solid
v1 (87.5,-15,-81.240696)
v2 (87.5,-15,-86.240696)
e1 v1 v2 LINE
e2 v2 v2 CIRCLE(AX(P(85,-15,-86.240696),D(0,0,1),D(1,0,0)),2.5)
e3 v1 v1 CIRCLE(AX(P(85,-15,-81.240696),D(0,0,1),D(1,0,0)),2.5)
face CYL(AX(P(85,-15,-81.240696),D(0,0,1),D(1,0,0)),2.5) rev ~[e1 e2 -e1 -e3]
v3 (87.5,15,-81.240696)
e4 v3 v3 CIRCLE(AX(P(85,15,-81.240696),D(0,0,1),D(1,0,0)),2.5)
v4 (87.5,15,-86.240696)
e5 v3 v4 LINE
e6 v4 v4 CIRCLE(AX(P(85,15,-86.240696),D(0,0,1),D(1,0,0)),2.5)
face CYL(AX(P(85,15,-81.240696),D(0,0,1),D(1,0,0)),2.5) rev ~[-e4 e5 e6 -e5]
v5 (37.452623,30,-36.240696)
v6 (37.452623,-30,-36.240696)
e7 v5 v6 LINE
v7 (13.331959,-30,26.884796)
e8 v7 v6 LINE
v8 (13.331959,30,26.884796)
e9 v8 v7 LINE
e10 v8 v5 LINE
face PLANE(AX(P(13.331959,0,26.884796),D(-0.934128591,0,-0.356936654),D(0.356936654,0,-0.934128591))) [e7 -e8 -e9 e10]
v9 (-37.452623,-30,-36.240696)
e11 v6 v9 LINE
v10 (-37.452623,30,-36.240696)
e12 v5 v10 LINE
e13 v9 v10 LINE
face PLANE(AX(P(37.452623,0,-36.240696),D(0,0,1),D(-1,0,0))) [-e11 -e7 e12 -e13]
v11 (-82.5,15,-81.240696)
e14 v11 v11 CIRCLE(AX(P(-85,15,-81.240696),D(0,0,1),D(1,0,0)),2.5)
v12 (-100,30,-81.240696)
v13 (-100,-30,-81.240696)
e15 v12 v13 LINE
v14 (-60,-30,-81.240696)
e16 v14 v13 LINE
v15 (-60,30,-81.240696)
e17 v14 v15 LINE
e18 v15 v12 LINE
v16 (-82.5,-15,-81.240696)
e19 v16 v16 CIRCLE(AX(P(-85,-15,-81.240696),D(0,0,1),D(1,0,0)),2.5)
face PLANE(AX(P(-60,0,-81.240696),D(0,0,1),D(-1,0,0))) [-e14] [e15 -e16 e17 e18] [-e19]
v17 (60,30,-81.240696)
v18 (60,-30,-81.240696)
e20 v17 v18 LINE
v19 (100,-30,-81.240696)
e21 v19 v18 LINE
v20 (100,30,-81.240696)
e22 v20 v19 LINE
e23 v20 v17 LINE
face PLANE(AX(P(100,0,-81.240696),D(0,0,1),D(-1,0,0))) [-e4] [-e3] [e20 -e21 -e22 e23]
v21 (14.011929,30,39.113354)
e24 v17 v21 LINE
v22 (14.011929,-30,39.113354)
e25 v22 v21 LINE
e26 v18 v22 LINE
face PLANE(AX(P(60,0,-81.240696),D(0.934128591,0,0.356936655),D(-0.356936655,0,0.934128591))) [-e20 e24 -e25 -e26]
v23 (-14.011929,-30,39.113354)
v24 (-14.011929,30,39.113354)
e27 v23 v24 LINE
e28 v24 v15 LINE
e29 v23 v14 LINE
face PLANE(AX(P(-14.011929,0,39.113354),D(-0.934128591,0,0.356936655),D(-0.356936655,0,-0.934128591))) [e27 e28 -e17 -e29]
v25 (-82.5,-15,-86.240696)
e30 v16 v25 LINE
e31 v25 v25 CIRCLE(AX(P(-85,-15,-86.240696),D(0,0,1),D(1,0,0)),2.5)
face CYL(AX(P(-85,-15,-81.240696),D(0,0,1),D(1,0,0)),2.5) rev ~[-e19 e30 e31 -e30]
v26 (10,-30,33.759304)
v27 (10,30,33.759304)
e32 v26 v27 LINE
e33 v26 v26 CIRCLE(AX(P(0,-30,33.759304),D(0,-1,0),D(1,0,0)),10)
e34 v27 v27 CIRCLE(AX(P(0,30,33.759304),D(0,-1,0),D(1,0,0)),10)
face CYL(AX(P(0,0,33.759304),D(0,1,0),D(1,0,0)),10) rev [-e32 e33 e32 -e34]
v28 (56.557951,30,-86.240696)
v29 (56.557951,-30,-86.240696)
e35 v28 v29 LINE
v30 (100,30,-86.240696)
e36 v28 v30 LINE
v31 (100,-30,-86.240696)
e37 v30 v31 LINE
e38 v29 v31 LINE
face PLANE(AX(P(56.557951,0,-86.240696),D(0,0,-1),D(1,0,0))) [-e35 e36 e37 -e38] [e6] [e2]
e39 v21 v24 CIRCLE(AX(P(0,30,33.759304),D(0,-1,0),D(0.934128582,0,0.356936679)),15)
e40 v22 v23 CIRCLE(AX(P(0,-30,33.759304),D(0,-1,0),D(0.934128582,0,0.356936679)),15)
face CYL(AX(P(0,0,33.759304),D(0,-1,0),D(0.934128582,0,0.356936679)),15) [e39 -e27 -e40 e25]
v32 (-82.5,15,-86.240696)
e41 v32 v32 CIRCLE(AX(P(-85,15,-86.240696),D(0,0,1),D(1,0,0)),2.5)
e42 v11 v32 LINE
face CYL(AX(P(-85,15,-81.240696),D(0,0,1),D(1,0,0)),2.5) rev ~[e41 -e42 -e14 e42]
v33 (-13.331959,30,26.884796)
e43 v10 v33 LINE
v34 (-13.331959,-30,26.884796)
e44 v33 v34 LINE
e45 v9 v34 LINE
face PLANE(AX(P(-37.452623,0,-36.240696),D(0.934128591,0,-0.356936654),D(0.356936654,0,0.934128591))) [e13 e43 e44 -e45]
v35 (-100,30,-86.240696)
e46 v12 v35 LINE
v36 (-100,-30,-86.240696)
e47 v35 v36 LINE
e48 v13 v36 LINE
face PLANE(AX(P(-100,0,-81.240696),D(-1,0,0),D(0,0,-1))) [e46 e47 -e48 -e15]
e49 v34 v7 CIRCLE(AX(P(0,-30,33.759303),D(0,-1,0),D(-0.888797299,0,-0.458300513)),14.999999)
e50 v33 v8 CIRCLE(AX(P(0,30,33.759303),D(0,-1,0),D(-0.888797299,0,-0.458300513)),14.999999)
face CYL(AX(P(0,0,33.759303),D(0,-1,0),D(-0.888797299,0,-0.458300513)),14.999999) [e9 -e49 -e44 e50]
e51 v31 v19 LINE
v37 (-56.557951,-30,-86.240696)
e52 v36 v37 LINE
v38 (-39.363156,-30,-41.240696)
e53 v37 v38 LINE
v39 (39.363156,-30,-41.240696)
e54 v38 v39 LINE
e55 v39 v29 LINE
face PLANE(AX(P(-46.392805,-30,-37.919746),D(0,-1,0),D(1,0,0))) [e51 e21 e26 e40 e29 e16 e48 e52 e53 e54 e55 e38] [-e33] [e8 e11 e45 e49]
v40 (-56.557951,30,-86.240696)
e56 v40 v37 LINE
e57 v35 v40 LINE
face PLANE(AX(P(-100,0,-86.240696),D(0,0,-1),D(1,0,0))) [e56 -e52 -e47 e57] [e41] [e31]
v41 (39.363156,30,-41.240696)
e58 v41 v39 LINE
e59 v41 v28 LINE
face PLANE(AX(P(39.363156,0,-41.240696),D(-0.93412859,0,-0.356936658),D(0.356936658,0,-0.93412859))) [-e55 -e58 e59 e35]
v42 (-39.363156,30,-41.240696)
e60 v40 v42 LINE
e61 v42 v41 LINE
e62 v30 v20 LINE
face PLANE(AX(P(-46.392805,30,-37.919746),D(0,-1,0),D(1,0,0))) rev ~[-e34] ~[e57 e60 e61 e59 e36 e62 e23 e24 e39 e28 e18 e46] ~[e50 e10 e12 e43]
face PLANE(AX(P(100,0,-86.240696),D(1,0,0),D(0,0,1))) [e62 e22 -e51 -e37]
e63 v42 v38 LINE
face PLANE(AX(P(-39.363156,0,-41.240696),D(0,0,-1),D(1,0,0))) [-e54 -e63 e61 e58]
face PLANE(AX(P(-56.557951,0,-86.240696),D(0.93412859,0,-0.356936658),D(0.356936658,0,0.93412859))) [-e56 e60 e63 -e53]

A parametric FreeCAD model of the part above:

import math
import FreeCAD as App
import Part
import Sketcher
Q = App.Units.Quantity

doc = App.newDocument("Part")
body = doc.addObject("PartDesign::Body", "Body")

# Sketch on XZ plane
sketch1 = body.newObject("Sketcher::SketchObject", "Sketch")
sketch1.AttachmentSupport = (doc.getObject("XZ_Plane"), [""])
sketch1.MapMode = "FlatFace"
sketch1.addGeometry([
    Part.LineSegment(App.Vector(-60, -81, 0), App.Vector(-100, -81, 0)),  # 0
    Part.LineSegment(App.Vector(-100, -81, 0), App.Vector(-100, -86, 0)),  # 1
    Part.LineSegment(App.Vector(-100, -86, 0), App.Vector(-57, -86, 0)),  # 2
    Part.LineSegment(App.Vector(-57, -86, 0), App.Vector(-39, -41, 0)),  # 3
    Part.LineSegment(App.Vector(-39, -41, 0), App.Vector(39, -41, 0)),  # 4
    Part.LineSegment(App.Vector(39, -41, 0), App.Vector(57, -86, 0)),  # 5
    Part.LineSegment(App.Vector(57, -86, 0), App.Vector(100, -86, 0)),  # 6
    Part.LineSegment(App.Vector(100, -86, 0), App.Vector(100, -81, 0)),  # 7
    Part.LineSegment(App.Vector(100, -81, 0), App.Vector(60, -81, 0)),  # 8
    Part.LineSegment(App.Vector(60, -81, 0), App.Vector(14, 39, 0)),  # 9
    Part.ArcOfCircle(Part.Circle(App.Vector(0, 34, 0), App.Vector(0, 0, 1), 15), math.radians(21), math.radians(159)),  # 10
    Part.LineSegment(App.Vector(-14, 39, 0), App.Vector(-60, -81, 0)),  # 11
    Part.LineSegment(App.Vector(-37, -36, 0), App.Vector(-13, 27, 0)),  # 12
    Part.ArcOfCircle(Part.Circle(App.Vector(0, 34, 0), App.Vector(0, 0, 1), 15), math.radians(-153), math.radians(-27)),  # 13
    Part.LineSegment(App.Vector(13, 27, 0), App.Vector(37, -36, 0)),  # 14
    Part.LineSegment(App.Vector(37, -36, 0), App.Vector(-37, -36, 0)),  # 15
    Part.Circle(App.Vector(0, 34, 0), App.Vector(0, 0, 1), 10),  # 16
], False)
sketch1.addConstraint([
    Sketcher.Constraint("Coincident", 0, 2, 1, 1),
    Sketcher.Constraint("Coincident", 1, 2, 2, 1),
    Sketcher.Constraint("Coincident", 2, 2, 3, 1),
    Sketcher.Constraint("Coincident", 3, 2, 4, 1),
    Sketcher.Constraint("Coincident", 4, 2, 5, 1),
    Sketcher.Constraint("Coincident", 5, 2, 6, 1),
    Sketcher.Constraint("Coincident", 6, 2, 7, 1),
    Sketcher.Constraint("Coincident", 7, 2, 8, 1),
    Sketcher.Constraint("Coincident", 8, 2, 9, 1),
    Sketcher.Constraint("Tangent", 9, 2, 10, 1),
    Sketcher.Constraint("Tangent", 10, 2, 11, 1),
    Sketcher.Constraint("Coincident", 11, 2, 0, 1),
    Sketcher.Constraint("Coincident", 12, 2, 13, 1),
    Sketcher.Constraint("Coincident", 13, 2, 14, 1),
    Sketcher.Constraint("Coincident", 14, 2, 15, 1),
    Sketcher.Constraint("Coincident", 15, 2, 12, 1),
    Sketcher.Constraint("Horizontal", 0),
    Sketcher.Constraint("Vertical", 1),
    Sketcher.Constraint("Horizontal", 2),
    Sketcher.Constraint("Horizontal", 4),
    Sketcher.Constraint("Horizontal", 6),
    Sketcher.Constraint("Vertical", 7),
    Sketcher.Constraint("Horizontal", 8),
    Sketcher.Constraint("Horizontal", 15),
    Sketcher.Constraint("Coincident", 13, 3, 10, 3),
    Sketcher.Constraint("Coincident", 16, 3, 10, 3),
    Sketcher.Constraint("Equal", 10, 13),
    Sketcher.Constraint("Symmetric", 2, 2, 5, 2, -2),
    Sketcher.Constraint("Symmetric", 0, 2, 7, 2, -2),
    Sketcher.Constraint("Symmetric", 9, 2, 10, 2, -2),
    Sketcher.Constraint("Parallel", 5, 9),
    Sketcher.Constraint("Parallel", 3, 11),
    Sketcher.Constraint("Parallel", 11, 12),
    Sketcher.Constraint("Parallel", 9, 14),
    Sketcher.Constraint("Horizontal", 12, 2, 13, 2),
    Sketcher.Constraint("Diameter", 16, Q("20 mm")),
    Sketcher.Constraint("Radius", 10, Q("15 mm")),
    Sketcher.Constraint("DistanceX", 0, 2, 0, 1, Q("40 mm")),
    Sketcher.Constraint("DistanceY", 1, 2, 1, 1, Q("5 mm")),
    Sketcher.Constraint("DistanceX", 0, 2, -1, 1, Q("100 mm")),
    Sketcher.Constraint("DistanceY", 0, 2, 13, 3, Q("114.999999 mm")),
    Sketcher.Constraint("DistanceY", 2, 2, 3, 2, Q("45 mm")),
    Sketcher.Constraint("DistanceY", 4, 2, 14, 2, Q("5 mm")),
    Sketcher.Constraint("DistanceX", 2, 1, 2, 2, Q("43.442049 mm")),
    Sketcher.Constraint("DistanceX", 15, 2, 15, 1, Q("74.905246 mm")),
    Sketcher.Constraint("DistanceY", -1, 1, 10, 3, Q("33.759304 mm")),
])
pad1 = body.newObject("PartDesign::Pad", "Pad")
pad1.Profile = sketch1
pad1.Length = 60
pad1.Midplane = True

# Sketch on XY plane
sketch2 = body.newObject("Sketcher::SketchObject", "Sketch001")
sketch2.AttachmentSupport = (doc.getObject("XY_Plane"), [""])
sketch2.MapMode = "FlatFace"
sketch2.AttachmentOffset = App.Placement(App.Vector(0, 0, -81.240696), App.Rotation())
sketch2.addGeometry([
    Part.Circle(App.Vector(-85, 15, 0), App.Vector(0, 0, 1), 2.5),
    Part.Circle(App.Vector(-85, -15, 0), App.Vector(0, 0, 1), 2.5),
    Part.Circle(App.Vector(85, -15, 0), App.Vector(0, 0, 1), 2.5),
    Part.Circle(App.Vector(85, 15, 0), App.Vector(0, 0, 1), 2.5),
], False)
sketch2.addConstraint([
    Sketcher.Constraint("Equal", 0, 1),
    Sketcher.Constraint("Equal", 1, 2),
    Sketcher.Constraint("Equal", 2, 3),
    Sketcher.Constraint("Symmetric", 0, 3, 2, 3, -1, 1),
    Sketcher.Constraint("Symmetric", 1, 3, 3, 3, -1, 1),
    Sketcher.Constraint("Symmetric", 1, 3, 2, 3, -2),
    Sketcher.Constraint("Diameter", 0, Q("5 mm")),
    Sketcher.Constraint("DistanceX", 0, 3, -1, 1, Q("85 mm")),
    Sketcher.Constraint("DistanceY", -1, 1, 0, 3, Q("15 mm")),
])
pocket1 = body.newObject("PartDesign::Pocket", "Pocket")
pocket1.Profile = sketch2
pocket1.Type = "ThroughAll"

doc.recompute()
